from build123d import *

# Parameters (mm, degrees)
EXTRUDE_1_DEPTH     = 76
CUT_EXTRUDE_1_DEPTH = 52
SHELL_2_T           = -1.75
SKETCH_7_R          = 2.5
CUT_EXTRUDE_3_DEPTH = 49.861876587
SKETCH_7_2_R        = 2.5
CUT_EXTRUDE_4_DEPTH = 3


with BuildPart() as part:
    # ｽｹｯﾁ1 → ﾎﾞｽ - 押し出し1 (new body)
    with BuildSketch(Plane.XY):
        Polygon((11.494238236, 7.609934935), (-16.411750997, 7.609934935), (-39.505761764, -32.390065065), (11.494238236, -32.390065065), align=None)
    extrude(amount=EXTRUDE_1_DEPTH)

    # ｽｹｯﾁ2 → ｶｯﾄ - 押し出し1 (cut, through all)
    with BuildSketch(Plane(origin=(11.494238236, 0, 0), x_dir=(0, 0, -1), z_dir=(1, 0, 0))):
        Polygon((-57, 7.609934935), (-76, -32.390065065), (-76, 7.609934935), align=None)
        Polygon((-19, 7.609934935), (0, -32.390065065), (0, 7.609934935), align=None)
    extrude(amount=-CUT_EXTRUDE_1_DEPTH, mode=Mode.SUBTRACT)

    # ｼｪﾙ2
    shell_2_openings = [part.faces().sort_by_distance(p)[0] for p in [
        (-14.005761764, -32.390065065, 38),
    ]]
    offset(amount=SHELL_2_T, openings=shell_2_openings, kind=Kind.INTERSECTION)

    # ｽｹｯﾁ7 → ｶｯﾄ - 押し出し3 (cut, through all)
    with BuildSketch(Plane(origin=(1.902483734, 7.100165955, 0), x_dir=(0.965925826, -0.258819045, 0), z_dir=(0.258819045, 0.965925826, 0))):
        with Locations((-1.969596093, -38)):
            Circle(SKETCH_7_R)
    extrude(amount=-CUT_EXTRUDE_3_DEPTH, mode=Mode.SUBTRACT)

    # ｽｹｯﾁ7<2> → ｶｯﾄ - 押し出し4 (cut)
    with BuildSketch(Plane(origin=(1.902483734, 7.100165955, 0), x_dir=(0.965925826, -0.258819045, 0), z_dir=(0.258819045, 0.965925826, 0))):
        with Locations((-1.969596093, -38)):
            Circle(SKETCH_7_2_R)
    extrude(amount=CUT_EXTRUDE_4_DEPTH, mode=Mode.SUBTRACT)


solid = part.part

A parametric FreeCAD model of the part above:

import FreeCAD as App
import Part
import Sketcher
Q = App.Units.Quantity


def faces_at(feature, points):
    """Names of the faces that lie closest to the given points."""
    faces = feature.Shape.Faces
    near = lambda p: min(range(len(faces)), key=lambda i: faces[i].distToShape(Part.Vertex(*p))[0])
    return sorted({f"Face{near(p) + 1}" for p in points})


def add_polygon(sketch, points):
    """Adds a closed chain of lines whose ends are joined by coincident constraints."""
    first, n = sketch.GeometryCount, len(points)
    for a, b in zip(points, points[1:] + points[:1]):
        sketch.addGeometry(Part.LineSegment(App.Vector(*a, 0), App.Vector(*b, 0)), False)
    for i in range(n):
        sketch.addConstraint(Sketcher.Constraint("Coincident", first + i, 2, first + (i + 1) % n, 1))

doc = App.newDocument("Part")
body = doc.addObject("PartDesign::Body", "Body")

sketch1 = body.newObject("Sketcher::SketchObject", "Sketch")
sketch1.AttachmentSupport = (doc.getObject("XY_Plane"), [""])
sketch1.MapMode = "FlatFace"
add_polygon(sketch1, [(11, 8), (-16, 8), (-40, -32), (11, -32)])
sketch1.addConstraint(Sketcher.Constraint("Horizontal", 0))
sketch1.addConstraint(Sketcher.Constraint("Horizontal", 2))
sketch1.addConstraint(Sketcher.Constraint("Vertical", 3))
sketch1.addConstraint(Sketcher.Constraint("DistanceX", 2, 1, 2, 2, Q("51 mm")))
sketch1.addConstraint(Sketcher.Constraint("DistanceY", 3, 1, 3, 2, Q("40 mm")))
sketch1.addConstraint(Sketcher.Constraint("Angle", 1, Q("-120 deg")))
sketch1.addConstraint(Sketcher.Constraint("DistanceX", 0, 2, -1, 1, Q("16.411751 mm")))
sketch1.addConstraint(Sketcher.Constraint("DistanceY", -1, 1, 0, 2, Q("7.609935 mm")))
pad1 = body.newObject("PartDesign::Pad", "Pad")
pad1.Profile = sketch1
pad1.Length = 76

sketch2 = body.newObject("Sketcher::SketchObject", "Sketch001")
sketch2.AttachmentSupport = (doc.getObject("YZ_Plane"), [""])
sketch2.MapMode = "FlatFace"
sketch2.AttachmentOffset = App.Placement(App.Vector(0, 0, 11.494238), App.Rotation())
add_polygon(sketch2, [(-32, 76), (8, 57), (8, 76)])
add_polygon(sketch2, [(8, 19), (-32, 0), (8, 0)])
sketch2.addConstraint(Sketcher.Constraint("Vertical", 1))
sketch2.addConstraint(Sketcher.Constraint("Horizontal", 2))
sketch2.addConstraint(Sketcher.Constraint("Horizontal", 4))
sketch2.addConstraint(Sketcher.Constraint("Vertical", 5))
sketch2.addConstraint(Sketcher.Constraint("PointOnObject", 3, 2, -1))
sketch2.addConstraint(Sketcher.Constraint("Vertical", 2, 2, 3, 2))
sketch2.addConstraint(Sketcher.Constraint("Vertical", 1, 2, 4, 2))
sketch2.addConstraint(Sketcher.Constraint("Equal", 1, 5))
sketch2.addConstraint(Sketcher.Constraint("DistanceX", 2, 2, 2, 1, Q("40 mm")))
sketch2.addConstraint(Sketcher.Constraint("DistanceY", 1, 1, 1, 2, Q("19 mm")))
sketch2.addConstraint(Sketcher.Constraint("DistanceY", -1, 1, 0, 2, Q("57 mm")))
sketch2.addConstraint(Sketcher.Constraint("DistanceX", -1, 1, 0, 2, Q("7.609935 mm")))
pocket1 = body.newObject("PartDesign::Pocket", "Pocket")
pocket1.Profile = sketch2
pocket1.Type = "ThroughAll"
doc.recompute()

thickness = body.newObject("PartDesign::Thickness", "Thickness")
thickness.Base = (pocket1, faces_at(pocket1, [(-14.006, -32.39, 38)]))
thickness.Value = 1.75
thickness.Reversed = True
thickness.Join = "Intersection"

sketch3 = body.newObject("Sketcher::SketchObject", "Sketch002")
sketch3.Placement = App.Placement(App.Vector(1.902484, 7.100166, 0), App.Rotation(App.Vector(0.965925826, -0.258819045, 0), App.Vector(0, 0, -0.999999999), App.Vector(0.258819045, 0.965925826, 0), "ZXY"))
sketch3.addGeometry(Part.Circle(App.Vector(-2, -38, 0), App.Vector(0, 0, 1), 2.5), False)
sketch3.addConstraint(Sketcher.Constraint("Diameter", 0, Q("5 mm")))
sketch3.addConstraint(Sketcher.Constraint("DistanceY", 0, 3, -1, 1, Q("38 mm")))
sketch3.addConstraint(Sketcher.Constraint("DistanceX", 0, 3, -1, 1, Q("1.969596 mm")))
pocket2 = body.newObject("PartDesign::Pocket", "Pocket001")
pocket2.Profile = sketch3
pocket2.Type = "ThroughAll"

sketch4 = body.newObject("Sketcher::SketchObject", "Sketch003")
sketch4.Placement = App.Placement(App.Vector(1.902484, 7.100166, 0), App.Rotation(App.Vector(0.965925826, -0.258819045, 0), App.Vector(0, 0, -0.999999999), App.Vector(0.258819045, 0.965925826, 0), "ZXY"))
sketch4.addGeometry(Part.Circle(App.Vector(-2, -38, 0), App.Vector(0, 0, 1), 2.5), False)
sketch4.addConstraint(Sketcher.Constraint("Diameter", 0, Q("5 mm")))
sketch4.addConstraint(Sketcher.Constraint("DistanceY", 0, 3, -1, 1, Q("38 mm")))
sketch4.addConstraint(Sketcher.Constraint("DistanceX", 0, 3, -1, 1, Q("1.969596 mm")))
pocket3 = body.newObject("PartDesign::Pocket", "Pocket002")
pocket3.Profile = sketch4
pocket3.Length = 3
pocket3.Reversed = True

doc.recompute()
